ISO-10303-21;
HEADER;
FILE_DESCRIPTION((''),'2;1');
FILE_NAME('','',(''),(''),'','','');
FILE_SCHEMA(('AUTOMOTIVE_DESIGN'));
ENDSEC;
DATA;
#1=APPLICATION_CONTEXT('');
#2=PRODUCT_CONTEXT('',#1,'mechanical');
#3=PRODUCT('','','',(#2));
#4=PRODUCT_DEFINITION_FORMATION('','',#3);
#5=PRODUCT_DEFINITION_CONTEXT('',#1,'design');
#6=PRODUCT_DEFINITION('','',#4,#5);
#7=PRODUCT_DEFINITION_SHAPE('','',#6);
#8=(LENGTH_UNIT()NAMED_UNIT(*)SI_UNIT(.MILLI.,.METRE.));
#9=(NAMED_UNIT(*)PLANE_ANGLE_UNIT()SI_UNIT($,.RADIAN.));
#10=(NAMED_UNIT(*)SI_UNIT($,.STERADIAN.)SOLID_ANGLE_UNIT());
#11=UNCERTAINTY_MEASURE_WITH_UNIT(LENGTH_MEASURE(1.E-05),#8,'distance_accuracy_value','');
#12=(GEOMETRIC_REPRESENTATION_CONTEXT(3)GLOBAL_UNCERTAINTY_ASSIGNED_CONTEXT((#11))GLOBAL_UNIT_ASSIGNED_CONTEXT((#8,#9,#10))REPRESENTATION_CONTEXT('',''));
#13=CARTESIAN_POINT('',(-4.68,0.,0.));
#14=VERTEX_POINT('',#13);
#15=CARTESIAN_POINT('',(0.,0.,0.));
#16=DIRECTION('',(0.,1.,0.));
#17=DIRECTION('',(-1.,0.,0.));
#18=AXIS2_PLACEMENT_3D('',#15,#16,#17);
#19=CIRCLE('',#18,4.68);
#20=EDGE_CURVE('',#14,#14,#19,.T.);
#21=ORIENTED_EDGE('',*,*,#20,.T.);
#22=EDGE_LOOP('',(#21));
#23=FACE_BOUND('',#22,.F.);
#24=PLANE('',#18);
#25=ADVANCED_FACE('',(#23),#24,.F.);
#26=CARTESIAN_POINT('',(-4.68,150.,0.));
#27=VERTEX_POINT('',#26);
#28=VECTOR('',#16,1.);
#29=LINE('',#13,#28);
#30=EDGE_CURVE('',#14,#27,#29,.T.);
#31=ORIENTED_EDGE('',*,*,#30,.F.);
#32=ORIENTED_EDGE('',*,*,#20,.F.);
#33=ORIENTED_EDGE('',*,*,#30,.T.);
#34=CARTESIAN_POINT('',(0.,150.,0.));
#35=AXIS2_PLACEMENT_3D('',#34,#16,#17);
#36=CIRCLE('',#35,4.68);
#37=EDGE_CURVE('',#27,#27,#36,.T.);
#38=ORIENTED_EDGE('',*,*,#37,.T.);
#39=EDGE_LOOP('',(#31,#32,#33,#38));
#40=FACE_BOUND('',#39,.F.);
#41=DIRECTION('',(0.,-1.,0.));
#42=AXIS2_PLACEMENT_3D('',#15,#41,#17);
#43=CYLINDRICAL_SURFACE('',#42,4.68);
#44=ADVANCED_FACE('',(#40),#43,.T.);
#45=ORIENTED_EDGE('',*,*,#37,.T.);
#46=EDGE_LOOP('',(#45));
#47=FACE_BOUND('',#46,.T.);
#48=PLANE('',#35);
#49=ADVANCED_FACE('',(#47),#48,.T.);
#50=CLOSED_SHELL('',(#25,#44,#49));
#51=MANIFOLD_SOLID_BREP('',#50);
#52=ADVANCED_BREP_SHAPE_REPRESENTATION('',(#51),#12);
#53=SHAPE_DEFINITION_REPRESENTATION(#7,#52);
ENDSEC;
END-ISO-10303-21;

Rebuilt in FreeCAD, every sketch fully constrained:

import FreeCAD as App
import Part
import Sketcher
from FreeCAD import Vector

doc = App.newDocument("Part")
body = doc.addObject("PartDesign::Body", "Body")

# Sketch on XZ plane
sketch1 = doc.addObject("Sketcher::SketchObject", "Sketch")
body.addObject(sketch1)
sketch1.AttachmentSupport = (doc.XZ_Plane, [""])
sketch1.MapMode = "FlatFace"
sketch1.addGeometry(Part.Circle(Vector(0, 0, 0), Vector(0, 0, 1), 4.7), False)
sketch1.addConstraint(Sketcher.Constraint("Coincident", 0, 3, -1, 1))
sketch1.addConstraint(Sketcher.Constraint("Diameter", 0, 9.36))
pad1 = doc.addObject("PartDesign::Pad", "Pad")
body.addObject(pad1)
pad1.Profile = sketch1
pad1.Length = 150
pad1.Reversed = True

doc.recompute()
